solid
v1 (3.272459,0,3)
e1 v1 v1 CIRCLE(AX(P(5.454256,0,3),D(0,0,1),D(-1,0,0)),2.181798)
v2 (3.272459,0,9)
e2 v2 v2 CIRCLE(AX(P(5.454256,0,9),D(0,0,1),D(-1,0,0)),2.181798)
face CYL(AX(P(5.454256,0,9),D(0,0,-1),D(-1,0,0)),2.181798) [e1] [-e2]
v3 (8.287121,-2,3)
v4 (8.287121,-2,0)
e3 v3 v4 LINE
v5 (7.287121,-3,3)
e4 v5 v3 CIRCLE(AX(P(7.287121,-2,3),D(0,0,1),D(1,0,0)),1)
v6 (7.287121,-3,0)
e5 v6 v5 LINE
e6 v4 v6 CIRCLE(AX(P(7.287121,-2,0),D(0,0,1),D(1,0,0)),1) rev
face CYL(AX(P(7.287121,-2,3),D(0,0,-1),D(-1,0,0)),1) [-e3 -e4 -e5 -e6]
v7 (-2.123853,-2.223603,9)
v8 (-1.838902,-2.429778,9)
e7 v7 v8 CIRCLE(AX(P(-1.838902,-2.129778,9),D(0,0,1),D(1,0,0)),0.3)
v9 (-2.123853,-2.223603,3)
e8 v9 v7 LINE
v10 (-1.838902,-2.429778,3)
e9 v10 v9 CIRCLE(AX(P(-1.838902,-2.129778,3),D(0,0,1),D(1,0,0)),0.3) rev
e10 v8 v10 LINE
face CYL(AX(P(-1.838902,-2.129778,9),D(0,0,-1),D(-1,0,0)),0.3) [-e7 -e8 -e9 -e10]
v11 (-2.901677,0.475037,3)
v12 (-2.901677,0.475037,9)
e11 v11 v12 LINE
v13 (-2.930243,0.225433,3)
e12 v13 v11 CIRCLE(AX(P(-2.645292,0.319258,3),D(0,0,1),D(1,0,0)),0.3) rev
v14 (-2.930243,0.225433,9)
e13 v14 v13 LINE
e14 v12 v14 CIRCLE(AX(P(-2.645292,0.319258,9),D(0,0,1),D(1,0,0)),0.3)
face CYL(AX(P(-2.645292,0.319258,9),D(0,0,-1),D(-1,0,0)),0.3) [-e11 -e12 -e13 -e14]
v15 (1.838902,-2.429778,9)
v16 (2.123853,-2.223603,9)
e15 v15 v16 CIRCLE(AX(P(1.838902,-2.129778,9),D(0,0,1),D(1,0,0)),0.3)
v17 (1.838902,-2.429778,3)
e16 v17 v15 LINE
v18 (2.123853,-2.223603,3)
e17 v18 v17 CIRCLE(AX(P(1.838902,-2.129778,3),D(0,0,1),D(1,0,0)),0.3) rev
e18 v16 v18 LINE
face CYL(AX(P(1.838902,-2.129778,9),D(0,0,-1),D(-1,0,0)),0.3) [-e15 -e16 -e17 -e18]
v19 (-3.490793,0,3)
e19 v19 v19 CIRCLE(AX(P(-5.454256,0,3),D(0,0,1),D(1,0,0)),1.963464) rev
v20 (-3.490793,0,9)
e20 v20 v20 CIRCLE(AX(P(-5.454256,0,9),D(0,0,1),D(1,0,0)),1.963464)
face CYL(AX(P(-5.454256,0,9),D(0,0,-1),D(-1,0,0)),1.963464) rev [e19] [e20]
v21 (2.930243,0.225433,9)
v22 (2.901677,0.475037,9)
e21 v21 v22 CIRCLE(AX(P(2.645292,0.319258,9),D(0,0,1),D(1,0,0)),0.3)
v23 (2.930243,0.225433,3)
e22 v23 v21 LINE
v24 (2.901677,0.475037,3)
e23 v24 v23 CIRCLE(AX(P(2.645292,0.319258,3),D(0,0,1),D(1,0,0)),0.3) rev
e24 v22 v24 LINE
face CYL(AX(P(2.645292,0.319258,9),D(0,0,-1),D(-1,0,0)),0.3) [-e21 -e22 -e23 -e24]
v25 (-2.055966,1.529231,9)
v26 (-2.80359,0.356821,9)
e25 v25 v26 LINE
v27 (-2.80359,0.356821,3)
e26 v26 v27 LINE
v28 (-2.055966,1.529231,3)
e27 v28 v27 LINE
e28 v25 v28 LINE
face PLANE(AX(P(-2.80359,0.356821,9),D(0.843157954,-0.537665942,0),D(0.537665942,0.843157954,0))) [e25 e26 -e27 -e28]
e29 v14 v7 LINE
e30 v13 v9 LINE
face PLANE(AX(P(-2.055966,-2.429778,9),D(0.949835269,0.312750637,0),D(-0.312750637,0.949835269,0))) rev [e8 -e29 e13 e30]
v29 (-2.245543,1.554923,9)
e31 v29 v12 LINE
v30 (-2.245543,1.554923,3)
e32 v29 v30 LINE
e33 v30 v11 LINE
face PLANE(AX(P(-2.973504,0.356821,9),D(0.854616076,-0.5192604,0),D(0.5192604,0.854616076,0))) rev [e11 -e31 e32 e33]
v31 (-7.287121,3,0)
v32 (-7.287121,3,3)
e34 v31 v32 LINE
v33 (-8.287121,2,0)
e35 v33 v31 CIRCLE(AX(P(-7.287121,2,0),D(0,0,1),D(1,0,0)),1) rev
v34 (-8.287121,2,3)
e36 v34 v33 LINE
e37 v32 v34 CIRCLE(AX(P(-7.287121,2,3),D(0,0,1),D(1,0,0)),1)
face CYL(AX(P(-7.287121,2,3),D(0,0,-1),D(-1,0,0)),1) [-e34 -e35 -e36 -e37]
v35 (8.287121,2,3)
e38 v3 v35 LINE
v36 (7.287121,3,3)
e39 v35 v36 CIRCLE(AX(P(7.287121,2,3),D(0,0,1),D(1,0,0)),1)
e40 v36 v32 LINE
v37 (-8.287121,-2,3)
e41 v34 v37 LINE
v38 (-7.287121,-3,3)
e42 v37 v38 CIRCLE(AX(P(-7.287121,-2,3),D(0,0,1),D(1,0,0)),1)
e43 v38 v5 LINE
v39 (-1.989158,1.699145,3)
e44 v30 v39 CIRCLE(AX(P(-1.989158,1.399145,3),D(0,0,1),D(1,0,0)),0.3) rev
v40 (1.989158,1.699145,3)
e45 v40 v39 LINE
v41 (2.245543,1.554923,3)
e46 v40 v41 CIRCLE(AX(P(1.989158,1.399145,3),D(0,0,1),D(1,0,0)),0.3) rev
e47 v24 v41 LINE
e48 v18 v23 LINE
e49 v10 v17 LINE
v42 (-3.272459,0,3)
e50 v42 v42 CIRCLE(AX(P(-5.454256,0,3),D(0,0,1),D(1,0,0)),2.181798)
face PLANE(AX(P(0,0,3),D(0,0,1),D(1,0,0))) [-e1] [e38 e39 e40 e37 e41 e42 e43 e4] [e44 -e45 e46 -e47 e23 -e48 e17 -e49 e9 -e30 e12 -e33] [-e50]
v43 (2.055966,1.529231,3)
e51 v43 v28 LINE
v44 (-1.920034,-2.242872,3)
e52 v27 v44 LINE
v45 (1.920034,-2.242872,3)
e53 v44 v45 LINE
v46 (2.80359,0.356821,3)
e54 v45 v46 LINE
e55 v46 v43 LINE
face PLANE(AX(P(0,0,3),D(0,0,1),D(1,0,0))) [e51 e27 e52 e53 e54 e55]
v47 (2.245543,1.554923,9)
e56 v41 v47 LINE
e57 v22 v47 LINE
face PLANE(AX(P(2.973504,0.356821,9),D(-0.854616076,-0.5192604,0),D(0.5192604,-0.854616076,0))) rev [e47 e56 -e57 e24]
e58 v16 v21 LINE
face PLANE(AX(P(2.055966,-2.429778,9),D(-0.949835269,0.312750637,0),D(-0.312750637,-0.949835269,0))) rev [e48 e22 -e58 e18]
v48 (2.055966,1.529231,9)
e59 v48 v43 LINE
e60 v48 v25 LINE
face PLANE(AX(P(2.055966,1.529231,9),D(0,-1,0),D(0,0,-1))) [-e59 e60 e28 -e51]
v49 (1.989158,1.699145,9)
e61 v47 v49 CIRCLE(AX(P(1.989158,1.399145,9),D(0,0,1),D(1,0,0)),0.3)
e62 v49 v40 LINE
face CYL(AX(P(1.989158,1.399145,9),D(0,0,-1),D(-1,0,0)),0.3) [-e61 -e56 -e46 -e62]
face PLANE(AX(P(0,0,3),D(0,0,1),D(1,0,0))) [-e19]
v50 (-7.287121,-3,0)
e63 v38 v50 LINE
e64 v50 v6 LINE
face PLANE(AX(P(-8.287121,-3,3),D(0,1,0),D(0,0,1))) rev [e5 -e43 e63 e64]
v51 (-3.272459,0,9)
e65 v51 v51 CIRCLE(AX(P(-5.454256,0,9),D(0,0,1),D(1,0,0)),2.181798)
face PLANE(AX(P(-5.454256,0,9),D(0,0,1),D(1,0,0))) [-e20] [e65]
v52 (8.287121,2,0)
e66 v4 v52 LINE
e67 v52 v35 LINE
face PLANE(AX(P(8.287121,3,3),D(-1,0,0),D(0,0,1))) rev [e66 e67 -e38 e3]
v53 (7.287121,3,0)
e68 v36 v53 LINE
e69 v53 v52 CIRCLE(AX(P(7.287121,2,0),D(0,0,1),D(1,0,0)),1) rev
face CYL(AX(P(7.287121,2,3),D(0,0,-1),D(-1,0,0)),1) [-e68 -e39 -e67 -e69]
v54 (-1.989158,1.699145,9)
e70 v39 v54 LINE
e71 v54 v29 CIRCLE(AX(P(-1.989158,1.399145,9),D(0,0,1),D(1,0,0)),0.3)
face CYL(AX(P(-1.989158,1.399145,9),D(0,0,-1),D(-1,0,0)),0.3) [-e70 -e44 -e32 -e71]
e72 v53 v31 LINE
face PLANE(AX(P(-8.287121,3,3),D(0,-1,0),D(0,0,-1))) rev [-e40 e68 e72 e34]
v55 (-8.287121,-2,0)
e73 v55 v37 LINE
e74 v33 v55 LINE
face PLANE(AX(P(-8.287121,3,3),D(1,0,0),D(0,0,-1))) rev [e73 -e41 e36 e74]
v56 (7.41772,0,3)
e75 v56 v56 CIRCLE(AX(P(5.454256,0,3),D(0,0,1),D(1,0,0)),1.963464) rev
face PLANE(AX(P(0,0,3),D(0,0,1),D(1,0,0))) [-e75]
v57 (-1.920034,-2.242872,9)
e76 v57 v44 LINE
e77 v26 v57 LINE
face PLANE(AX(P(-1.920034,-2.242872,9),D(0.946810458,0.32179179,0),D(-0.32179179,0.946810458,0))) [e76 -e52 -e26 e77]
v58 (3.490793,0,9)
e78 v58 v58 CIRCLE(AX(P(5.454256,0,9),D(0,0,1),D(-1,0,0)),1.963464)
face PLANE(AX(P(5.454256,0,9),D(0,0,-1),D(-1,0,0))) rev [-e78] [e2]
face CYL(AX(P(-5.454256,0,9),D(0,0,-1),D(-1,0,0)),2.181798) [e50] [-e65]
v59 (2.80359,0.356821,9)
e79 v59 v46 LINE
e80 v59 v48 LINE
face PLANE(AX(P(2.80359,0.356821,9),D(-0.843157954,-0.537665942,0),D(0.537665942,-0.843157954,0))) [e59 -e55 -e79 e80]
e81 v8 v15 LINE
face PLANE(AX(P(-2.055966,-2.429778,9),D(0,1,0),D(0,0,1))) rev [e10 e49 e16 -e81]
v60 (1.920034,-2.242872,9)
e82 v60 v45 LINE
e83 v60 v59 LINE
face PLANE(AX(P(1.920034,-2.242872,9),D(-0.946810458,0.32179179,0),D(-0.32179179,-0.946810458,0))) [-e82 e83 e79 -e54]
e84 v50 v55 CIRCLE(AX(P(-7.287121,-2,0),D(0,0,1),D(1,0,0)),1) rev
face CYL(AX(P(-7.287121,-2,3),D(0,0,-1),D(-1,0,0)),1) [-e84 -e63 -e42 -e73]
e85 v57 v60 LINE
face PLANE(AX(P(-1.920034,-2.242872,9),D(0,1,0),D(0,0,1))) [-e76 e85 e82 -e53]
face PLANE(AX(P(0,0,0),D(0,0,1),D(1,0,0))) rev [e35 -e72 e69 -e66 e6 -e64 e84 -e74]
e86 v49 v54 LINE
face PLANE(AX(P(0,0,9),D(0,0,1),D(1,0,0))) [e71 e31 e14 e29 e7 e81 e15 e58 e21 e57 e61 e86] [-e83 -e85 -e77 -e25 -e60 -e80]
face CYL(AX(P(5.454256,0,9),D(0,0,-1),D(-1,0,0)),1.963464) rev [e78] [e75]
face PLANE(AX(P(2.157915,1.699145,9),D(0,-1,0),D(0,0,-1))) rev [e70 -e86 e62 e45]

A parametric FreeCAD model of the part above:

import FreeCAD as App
import Part
import Sketcher
from FreeCAD import Vector


def edges_at(feature, points):
    """Names of the edges that pass closest to the given points."""
    edges = feature.Shape.Edges
    near = lambda p: min(range(len(edges)), key=lambda i: edges[i].distToShape(Part.Vertex(*p))[0])
    return sorted({f"Edge{near(p) + 1}" for p in points})


def add_polygon(sketch, points):
    """Adds a closed chain of lines whose ends are joined by coincident constraints."""
    first, n = sketch.GeometryCount, len(points)
    for a, b in zip(points, points[1:] + points[:1]):
        sketch.addGeometry(Part.LineSegment(App.Vector(*a, 0), App.Vector(*b, 0)), False)
    for i in range(n):
        sketch.addConstraint(Sketcher.Constraint("Coincident", first + i, 2, first + (i + 1) % n, 1))

doc = App.newDocument("Part")
body = doc.addObject("PartDesign::Body", "Body")

# Sketch on XY plane
sketch1 = body.newObject("Sketcher::SketchObject", "Sketch")
sketch1.AttachmentSupport = (doc.getObject("XY_Plane"), [""])
sketch1.MapMode = "FlatFace"
add_polygon(sketch1, [(-8, 3), (-8, -3), (8, -3), (8, 3)])  # lines 0-3
sketch1.addConstraint(Sketcher.Constraint("Vertical", 0))
sketch1.addConstraint(Sketcher.Constraint("Horizontal", 1))
sketch1.addConstraint(Sketcher.Constraint("Vertical", 2))
sketch1.addConstraint(Sketcher.Constraint("Horizontal", 3))
sketch1.addConstraint(Sketcher.Constraint("Symmetric", 0, 2, 2, 2, -1, 1))
sketch1.addConstraint(Sketcher.Constraint("DistanceY", 0, 2, 0, 1, 6.0))
sketch1.addConstraint(Sketcher.Constraint("DistanceX", 1, 1, 1, 2, 16.574243))
pad1 = body.newObject("PartDesign::Pad", "Pad")
pad1.Profile = sketch1
pad1.Length = 3

# Sketch on XY plane
sketch2 = body.newObject("Sketcher::SketchObject", "Sketch001")
sketch2.AttachmentSupport = (doc.getObject("XY_Plane"), [""])
sketch2.MapMode = "FlatFace"
sketch2.AttachmentOffset = App.Placement(Vector(0, 0, 3), App.Rotation())
sketch2.addGeometry(Part.Circle(Vector(-5.5, 0, 0), Vector(0, 0, 1), 2.2), False)  # 0
sketch2.addGeometry(Part.Circle(Vector(-5.5, 0, 0), Vector(0, 0, 1), 2), False)  # 1
sketch2.addGeometry(Part.Circle(Vector(5.5, 0, 0), Vector(0, 0, 1), 2.2), False)  # 2
sketch2.addGeometry(Part.Circle(Vector(5.5, 0, 0), Vector(0, 0, 1), 2), False)  # 3
add_polygon(sketch2, [(-2.1, -2.4), (2.1, -2.4), (3, 0.4), (2.2, 1.7), (-2.2, 1.7), (-3, 0.4)])  # lines 4-9
add_polygon(sketch2, [(1.9, -2.2), (-1.9, -2.2), (-2.8, 0.4), (-2.1, 1.5), (2.1, 1.5), (2.8, 0.4)])  # lines 10-15
sketch2.addConstraint(Sketcher.Constraint("Horizontal", 4))
sketch2.addConstraint(Sketcher.Constraint("Horizontal", 7))
sketch2.addConstraint(Sketcher.Constraint("Horizontal", 10))
sketch2.addConstraint(Sketcher.Constraint("Horizontal", 13))
sketch2.addConstraint(Sketcher.Constraint("Coincident", 1, 3, 0, 3))
sketch2.addConstraint(Sketcher.Constraint("Coincident", 3, 3, 2, 3))
sketch2.addConstraint(Sketcher.Constraint("Equal", 0, 2))
sketch2.addConstraint(Sketcher.Constraint("Equal", 1, 3))
sketch2.addConstraint(Sketcher.Constraint("Symmetric", 0, 3, 2, 3, -1, 1))
sketch2.addConstraint(Sketcher.Constraint("Symmetric", 5, 2, 8, 2, -2))
sketch2.addConstraint(Sketcher.Constraint("Symmetric", 11, 2, 14, 2, -2))
sketch2.addConstraint(Sketcher.Constraint("PointOnObject", 0, 3, -1))
sketch2.addConstraint(Sketcher.Constraint("Horizontal", 8, 2, 11, 2))
sketch2.addConstraint(Sketcher.Constraint("Vertical", 9, 2, 12, 2))
sketch2.addConstraint(Sketcher.Constraint("Vertical", 4, 2, 13, 2))
sketch2.addConstraint(Sketcher.Constraint("Equal", 6, 8))
sketch2.addConstraint(Sketcher.Constraint("Equal", 5, 9))
sketch2.addConstraint(Sketcher.Constraint("Equal", 11, 15))
sketch2.addConstraint(Sketcher.Constraint("Diameter", 0, 4.363596))
sketch2.addConstraint(Sketcher.Constraint("Diameter", 1, 3.926928))
sketch2.addConstraint(Sketcher.Constraint("DistanceX", 10, 2, 4, 2, 3.976))
sketch2.addConstraint(Sketcher.Constraint("Distance", 12, 1.390499))
sketch2.addConstraint(Sketcher.Constraint("DistanceX", 4, 1, 4, 2, 4.111932))
sketch2.addConstraint(Sketcher.Constraint("DistanceX", 7, 2, 7, 1, 4.315829))
sketch2.addConstraint(Sketcher.Constraint("DistanceY", 4, 2, 5, 2, 2.786598))
sketch2.addConstraint(Sketcher.Constraint("Distance", 5, 2.93377))
sketch2.addConstraint(Sketcher.Constraint("DistanceY", -1, 1, 5, 2, 0.356821))
sketch2.addConstraint(Sketcher.Constraint("DistanceY", 10, 2, -1, 1, 2.242872))
sketch2.addConstraint(Sketcher.Constraint("DistanceX", 11, 2, -1, 1, 2.80359))
sketch2.addConstraint(Sketcher.Constraint("DistanceX", 4, 2, 2, 3, 3.398291))
sketch2.addConstraint(Sketcher.Constraint("Distance", 6, 1.570676))
pad2 = body.newObject("PartDesign::Pad", "Pad001")
pad2.Profile = sketch2
pad2.Length = 6
doc.recompute()

fillet = body.newObject("PartDesign::Fillet", "Fillet")
fillet.Base = (pad2, edges_at(pad2, [
    (8.287, -3, 1.5),
    (-8.287, -3, 1.5),
    (-8.287, 3, 1.5),
    (8.287, 3, 1.5),
]))
fillet.Radius = 1
doc.recompute()

fillet2 = body.newObject("PartDesign::Fillet", "Fillet001")
fillet2.Base = (fillet, edges_at(fillet, [
    (-2.158, 1.699, 6),
    (-2.974, 0.357, 6),
    (-2.056, -2.43, 6),
    (2.056, -2.43, 6),
    (2.974, 0.357, 6),
    (2.158, 1.699, 6),
]))
fillet2.Radius = 0.3

doc.recompute()
